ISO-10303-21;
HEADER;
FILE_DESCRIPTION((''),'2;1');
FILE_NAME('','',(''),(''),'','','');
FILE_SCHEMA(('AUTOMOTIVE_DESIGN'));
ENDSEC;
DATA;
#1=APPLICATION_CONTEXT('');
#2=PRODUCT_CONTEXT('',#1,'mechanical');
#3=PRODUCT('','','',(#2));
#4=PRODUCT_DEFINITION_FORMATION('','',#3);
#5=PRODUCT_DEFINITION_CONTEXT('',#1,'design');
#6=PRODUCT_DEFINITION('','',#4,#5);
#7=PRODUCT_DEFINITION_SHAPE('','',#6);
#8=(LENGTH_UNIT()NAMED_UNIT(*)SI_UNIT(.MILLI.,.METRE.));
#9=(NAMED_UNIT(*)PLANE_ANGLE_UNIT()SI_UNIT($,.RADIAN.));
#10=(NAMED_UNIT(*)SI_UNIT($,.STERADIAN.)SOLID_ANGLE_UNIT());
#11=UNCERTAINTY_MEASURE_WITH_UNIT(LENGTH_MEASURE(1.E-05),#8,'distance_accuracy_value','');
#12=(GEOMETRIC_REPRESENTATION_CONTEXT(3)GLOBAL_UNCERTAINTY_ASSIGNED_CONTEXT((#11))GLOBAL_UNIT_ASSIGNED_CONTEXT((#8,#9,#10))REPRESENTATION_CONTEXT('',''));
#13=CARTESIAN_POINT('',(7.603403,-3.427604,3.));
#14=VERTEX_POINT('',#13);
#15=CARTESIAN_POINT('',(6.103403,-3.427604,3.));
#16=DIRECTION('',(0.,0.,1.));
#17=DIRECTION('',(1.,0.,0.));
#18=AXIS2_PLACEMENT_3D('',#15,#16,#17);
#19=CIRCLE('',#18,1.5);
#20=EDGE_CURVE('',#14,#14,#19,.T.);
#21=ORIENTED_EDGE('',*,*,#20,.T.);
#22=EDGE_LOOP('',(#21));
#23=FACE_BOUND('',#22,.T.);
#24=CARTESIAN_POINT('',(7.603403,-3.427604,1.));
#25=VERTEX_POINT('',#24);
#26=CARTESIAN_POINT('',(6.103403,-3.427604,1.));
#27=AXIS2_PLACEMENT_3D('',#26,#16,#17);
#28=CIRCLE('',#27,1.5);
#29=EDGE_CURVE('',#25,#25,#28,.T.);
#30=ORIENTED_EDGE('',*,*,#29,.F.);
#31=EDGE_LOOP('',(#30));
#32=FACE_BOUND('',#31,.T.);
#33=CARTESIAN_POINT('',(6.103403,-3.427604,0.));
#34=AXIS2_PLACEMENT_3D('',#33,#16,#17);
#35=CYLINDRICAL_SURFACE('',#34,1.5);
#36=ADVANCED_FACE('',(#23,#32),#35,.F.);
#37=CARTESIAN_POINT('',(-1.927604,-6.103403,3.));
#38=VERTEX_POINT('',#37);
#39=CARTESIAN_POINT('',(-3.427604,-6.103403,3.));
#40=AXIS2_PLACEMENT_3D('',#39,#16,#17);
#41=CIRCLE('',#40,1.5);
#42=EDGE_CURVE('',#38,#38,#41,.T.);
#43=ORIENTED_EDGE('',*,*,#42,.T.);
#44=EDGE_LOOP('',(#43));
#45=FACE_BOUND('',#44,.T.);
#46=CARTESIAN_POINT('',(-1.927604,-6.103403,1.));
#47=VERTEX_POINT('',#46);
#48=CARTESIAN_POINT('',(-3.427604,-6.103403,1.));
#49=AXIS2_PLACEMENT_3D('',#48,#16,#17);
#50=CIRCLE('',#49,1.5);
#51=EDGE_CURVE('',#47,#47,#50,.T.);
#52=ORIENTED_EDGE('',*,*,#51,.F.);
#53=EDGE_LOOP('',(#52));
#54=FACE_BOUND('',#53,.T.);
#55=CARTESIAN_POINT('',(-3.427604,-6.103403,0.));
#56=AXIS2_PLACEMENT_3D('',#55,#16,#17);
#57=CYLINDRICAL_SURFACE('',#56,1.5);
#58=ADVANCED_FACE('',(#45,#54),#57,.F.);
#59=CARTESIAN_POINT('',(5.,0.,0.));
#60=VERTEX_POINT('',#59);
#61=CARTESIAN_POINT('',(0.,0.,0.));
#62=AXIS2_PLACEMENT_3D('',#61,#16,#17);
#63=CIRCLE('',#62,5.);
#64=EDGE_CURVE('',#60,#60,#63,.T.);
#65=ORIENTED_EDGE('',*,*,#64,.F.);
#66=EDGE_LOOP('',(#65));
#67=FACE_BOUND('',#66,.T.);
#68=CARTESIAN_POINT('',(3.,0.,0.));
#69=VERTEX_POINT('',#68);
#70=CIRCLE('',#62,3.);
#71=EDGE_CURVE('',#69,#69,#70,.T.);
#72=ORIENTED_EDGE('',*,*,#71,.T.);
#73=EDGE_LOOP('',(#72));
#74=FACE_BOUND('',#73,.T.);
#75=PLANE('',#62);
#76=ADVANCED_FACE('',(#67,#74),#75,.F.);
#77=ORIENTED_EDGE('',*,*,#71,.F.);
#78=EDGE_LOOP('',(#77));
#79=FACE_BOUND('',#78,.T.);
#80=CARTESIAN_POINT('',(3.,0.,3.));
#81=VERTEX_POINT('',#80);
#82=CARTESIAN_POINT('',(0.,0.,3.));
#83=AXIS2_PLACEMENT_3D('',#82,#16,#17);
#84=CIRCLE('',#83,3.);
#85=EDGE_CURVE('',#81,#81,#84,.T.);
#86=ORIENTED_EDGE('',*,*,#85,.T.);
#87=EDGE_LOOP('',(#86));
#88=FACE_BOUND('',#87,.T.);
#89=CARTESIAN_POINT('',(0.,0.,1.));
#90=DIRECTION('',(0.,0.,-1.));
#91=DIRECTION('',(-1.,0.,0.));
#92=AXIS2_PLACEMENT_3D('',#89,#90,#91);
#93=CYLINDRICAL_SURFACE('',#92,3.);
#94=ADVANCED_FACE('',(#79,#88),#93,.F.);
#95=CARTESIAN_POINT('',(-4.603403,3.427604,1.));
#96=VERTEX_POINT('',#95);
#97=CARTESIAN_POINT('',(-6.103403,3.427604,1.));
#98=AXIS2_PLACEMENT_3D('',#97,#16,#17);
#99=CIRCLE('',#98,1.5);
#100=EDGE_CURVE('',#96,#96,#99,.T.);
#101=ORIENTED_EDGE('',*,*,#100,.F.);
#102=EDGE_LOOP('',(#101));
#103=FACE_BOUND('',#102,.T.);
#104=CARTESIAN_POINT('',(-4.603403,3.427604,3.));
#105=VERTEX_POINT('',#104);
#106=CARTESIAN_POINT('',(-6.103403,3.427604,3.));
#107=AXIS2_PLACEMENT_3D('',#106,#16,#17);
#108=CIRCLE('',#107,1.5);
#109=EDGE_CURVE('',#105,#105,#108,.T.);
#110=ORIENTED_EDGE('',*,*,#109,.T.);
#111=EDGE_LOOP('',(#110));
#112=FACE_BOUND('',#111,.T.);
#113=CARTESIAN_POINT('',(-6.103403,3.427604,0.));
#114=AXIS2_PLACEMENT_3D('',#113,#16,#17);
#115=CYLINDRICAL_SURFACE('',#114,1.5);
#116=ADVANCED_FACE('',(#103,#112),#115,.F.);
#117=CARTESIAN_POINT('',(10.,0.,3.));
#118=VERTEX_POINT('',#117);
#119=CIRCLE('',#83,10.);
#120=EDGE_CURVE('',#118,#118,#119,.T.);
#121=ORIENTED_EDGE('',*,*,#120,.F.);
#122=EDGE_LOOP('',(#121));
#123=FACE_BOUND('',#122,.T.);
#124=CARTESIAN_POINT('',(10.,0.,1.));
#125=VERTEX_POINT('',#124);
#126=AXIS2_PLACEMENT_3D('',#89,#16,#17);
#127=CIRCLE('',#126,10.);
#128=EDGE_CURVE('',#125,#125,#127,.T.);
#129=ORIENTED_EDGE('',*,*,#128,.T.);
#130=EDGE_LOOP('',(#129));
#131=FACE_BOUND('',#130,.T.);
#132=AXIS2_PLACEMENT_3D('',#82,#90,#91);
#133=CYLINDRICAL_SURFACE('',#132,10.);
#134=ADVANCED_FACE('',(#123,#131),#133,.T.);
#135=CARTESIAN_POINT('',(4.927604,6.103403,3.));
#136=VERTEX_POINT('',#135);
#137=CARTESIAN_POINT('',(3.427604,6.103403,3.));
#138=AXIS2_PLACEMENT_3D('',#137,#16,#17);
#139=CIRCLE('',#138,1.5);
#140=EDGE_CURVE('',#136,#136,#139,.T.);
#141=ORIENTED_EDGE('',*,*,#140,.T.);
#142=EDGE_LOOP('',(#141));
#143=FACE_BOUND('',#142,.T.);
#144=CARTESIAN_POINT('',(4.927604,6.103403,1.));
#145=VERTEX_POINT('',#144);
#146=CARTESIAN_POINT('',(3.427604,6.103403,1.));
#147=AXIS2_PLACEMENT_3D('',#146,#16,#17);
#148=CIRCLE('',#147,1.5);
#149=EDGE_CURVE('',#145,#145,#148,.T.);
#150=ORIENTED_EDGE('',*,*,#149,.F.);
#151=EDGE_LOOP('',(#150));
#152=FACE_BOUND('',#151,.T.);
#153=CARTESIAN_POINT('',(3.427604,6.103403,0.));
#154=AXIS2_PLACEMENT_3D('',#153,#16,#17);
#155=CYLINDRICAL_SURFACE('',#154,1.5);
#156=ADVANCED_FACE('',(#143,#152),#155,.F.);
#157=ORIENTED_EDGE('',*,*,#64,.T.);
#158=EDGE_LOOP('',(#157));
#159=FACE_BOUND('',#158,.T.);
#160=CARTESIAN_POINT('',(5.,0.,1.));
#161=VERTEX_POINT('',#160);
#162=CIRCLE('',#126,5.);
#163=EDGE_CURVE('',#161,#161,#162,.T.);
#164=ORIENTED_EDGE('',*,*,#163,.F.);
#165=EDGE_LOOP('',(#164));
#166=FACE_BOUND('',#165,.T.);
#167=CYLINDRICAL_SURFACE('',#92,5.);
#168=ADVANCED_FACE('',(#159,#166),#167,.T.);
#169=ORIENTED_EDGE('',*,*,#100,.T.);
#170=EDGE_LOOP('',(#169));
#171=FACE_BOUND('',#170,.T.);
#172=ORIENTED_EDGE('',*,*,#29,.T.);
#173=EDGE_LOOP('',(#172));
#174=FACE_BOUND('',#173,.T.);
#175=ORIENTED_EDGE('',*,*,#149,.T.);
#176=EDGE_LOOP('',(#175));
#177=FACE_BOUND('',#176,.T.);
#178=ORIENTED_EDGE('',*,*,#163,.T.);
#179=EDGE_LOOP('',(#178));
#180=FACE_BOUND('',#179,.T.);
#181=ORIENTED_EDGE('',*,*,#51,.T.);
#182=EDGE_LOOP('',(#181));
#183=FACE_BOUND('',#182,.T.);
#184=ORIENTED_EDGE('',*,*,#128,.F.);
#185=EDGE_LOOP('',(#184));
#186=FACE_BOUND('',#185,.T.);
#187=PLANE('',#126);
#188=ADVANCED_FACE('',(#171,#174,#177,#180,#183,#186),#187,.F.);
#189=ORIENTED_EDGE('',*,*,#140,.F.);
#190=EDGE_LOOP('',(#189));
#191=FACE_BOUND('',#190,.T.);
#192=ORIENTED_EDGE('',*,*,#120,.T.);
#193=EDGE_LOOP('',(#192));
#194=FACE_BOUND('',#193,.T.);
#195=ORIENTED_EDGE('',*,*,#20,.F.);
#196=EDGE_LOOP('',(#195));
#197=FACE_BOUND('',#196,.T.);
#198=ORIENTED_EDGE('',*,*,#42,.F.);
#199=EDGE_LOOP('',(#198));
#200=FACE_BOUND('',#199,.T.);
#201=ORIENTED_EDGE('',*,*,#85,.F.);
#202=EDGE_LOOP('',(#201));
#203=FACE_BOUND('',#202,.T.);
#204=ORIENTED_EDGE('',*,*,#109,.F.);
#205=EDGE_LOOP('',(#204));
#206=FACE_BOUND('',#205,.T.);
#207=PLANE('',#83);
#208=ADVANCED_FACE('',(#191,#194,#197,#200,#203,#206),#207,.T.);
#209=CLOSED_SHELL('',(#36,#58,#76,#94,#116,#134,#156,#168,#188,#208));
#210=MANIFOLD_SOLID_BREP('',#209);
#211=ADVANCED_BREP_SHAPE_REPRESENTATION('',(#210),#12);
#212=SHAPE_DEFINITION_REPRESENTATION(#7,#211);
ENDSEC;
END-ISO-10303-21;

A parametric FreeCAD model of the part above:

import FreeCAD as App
import Part
import Sketcher
Q = App.Units.Quantity

doc = App.newDocument("Part")
body = doc.addObject("PartDesign::Body", "Body")

# Sketch on XY plane
sketch1 = body.newObject("Sketcher::SketchObject", "Sketch")
sketch1.AttachmentSupport = (doc.getObject("XY_Plane"), [""])
sketch1.MapMode = "FlatFace"
sketch1.addGeometry([
    Part.Circle(App.Vector(0, 0, 0), App.Vector(0, 0, 1), 5),
    Part.Circle(App.Vector(0, 0, 0), App.Vector(0, 0, 1), 3),
], False)
sketch1.addConstraint([
    Sketcher.Constraint("Coincident", 0, 3, -1, 1),
    Sketcher.Constraint("Coincident", 1, 3, -1, 1),
    Sketcher.Constraint("Diameter", 0, Q("10 mm")),
    Sketcher.Constraint("Diameter", 1, Q("6 mm")),
])
pad1 = body.newObject("PartDesign::Pad", "Pad")
pad1.Profile = sketch1
pad1.Length = 1

# Sketch on XY plane
sketch2 = body.newObject("Sketcher::SketchObject", "Sketch001")
sketch2.AttachmentSupport = (doc.getObject("XY_Plane"), [""])
sketch2.MapMode = "FlatFace"
sketch2.AttachmentOffset = App.Placement(App.Vector(0, 0, 1), App.Rotation())
sketch2.addGeometry([
    Part.Circle(App.Vector(0, 0, 0), App.Vector(0, 0, 1), 10),
    Part.Circle(App.Vector(0, 0, 0), App.Vector(0, 0, 1), 3),
], False)
sketch2.addConstraint([
    Sketcher.Constraint("Coincident", 0, 3, -1, 1),
    Sketcher.Constraint("Coincident", 1, 3, -1, 1),
    Sketcher.Constraint("Diameter", 0, Q("20 mm")),
    Sketcher.Constraint("Diameter", 1, Q("6 mm")),
])
pad2 = body.newObject("PartDesign::Pad", "Pad001")
pad2.Profile = sketch2
pad2.Length = 2

# Sketch on XY plane
sketch3 = body.newObject("Sketcher::SketchObject", "Sketch002")
sketch3.AttachmentSupport = (doc.getObject("XY_Plane"), [""])
sketch3.MapMode = "FlatFace"
sketch3.AttachmentOffset = App.Placement(App.Vector(0, 0, 3), App.Rotation())
sketch3.addGeometry([
    Part.Circle(App.Vector(3.4, 6.1, 0), App.Vector(0, 0, 1), 1.5),
    Part.Circle(App.Vector(6.1, -3.4, 0), App.Vector(0, 0, 1), 1.5),
    Part.Circle(App.Vector(-3.4, -6.1, 0), App.Vector(0, 0, 1), 1.5),
    Part.Circle(App.Vector(-6.1, 3.4, 0), App.Vector(0, 0, 1), 1.5),
], False)
sketch3.addConstraint([
    Sketcher.Constraint("Equal", 0, 1),
    Sketcher.Constraint("Equal", 1, 2),
    Sketcher.Constraint("Equal", 2, 3),
    Sketcher.Constraint("Symmetric", 0, 3, 2, 3, -1, 1),
    Sketcher.Constraint("Symmetric", 1, 3, 3, 3, -1, 1),
    Sketcher.Constraint("Diameter", 0, Q("3 mm")),
    Sketcher.Constraint("DistanceX", 0, 3, 1, 3, Q("2.675799 mm")),
    Sketcher.Constraint("DistanceY", 2, 3, 1, 3, Q("2.675799 mm")),
    Sketcher.Constraint("DistanceX", 2, 3, 0, 3, Q("6.855208 mm")),
    Sketcher.Constraint("DistanceY", 1, 3, 3, 3, Q("6.855208 mm")),
])
pocket1 = body.newObject("PartDesign::Pocket", "Pocket")
pocket1.Profile = sketch3
pocket1.Type = "ThroughAll"

doc.recompute()
